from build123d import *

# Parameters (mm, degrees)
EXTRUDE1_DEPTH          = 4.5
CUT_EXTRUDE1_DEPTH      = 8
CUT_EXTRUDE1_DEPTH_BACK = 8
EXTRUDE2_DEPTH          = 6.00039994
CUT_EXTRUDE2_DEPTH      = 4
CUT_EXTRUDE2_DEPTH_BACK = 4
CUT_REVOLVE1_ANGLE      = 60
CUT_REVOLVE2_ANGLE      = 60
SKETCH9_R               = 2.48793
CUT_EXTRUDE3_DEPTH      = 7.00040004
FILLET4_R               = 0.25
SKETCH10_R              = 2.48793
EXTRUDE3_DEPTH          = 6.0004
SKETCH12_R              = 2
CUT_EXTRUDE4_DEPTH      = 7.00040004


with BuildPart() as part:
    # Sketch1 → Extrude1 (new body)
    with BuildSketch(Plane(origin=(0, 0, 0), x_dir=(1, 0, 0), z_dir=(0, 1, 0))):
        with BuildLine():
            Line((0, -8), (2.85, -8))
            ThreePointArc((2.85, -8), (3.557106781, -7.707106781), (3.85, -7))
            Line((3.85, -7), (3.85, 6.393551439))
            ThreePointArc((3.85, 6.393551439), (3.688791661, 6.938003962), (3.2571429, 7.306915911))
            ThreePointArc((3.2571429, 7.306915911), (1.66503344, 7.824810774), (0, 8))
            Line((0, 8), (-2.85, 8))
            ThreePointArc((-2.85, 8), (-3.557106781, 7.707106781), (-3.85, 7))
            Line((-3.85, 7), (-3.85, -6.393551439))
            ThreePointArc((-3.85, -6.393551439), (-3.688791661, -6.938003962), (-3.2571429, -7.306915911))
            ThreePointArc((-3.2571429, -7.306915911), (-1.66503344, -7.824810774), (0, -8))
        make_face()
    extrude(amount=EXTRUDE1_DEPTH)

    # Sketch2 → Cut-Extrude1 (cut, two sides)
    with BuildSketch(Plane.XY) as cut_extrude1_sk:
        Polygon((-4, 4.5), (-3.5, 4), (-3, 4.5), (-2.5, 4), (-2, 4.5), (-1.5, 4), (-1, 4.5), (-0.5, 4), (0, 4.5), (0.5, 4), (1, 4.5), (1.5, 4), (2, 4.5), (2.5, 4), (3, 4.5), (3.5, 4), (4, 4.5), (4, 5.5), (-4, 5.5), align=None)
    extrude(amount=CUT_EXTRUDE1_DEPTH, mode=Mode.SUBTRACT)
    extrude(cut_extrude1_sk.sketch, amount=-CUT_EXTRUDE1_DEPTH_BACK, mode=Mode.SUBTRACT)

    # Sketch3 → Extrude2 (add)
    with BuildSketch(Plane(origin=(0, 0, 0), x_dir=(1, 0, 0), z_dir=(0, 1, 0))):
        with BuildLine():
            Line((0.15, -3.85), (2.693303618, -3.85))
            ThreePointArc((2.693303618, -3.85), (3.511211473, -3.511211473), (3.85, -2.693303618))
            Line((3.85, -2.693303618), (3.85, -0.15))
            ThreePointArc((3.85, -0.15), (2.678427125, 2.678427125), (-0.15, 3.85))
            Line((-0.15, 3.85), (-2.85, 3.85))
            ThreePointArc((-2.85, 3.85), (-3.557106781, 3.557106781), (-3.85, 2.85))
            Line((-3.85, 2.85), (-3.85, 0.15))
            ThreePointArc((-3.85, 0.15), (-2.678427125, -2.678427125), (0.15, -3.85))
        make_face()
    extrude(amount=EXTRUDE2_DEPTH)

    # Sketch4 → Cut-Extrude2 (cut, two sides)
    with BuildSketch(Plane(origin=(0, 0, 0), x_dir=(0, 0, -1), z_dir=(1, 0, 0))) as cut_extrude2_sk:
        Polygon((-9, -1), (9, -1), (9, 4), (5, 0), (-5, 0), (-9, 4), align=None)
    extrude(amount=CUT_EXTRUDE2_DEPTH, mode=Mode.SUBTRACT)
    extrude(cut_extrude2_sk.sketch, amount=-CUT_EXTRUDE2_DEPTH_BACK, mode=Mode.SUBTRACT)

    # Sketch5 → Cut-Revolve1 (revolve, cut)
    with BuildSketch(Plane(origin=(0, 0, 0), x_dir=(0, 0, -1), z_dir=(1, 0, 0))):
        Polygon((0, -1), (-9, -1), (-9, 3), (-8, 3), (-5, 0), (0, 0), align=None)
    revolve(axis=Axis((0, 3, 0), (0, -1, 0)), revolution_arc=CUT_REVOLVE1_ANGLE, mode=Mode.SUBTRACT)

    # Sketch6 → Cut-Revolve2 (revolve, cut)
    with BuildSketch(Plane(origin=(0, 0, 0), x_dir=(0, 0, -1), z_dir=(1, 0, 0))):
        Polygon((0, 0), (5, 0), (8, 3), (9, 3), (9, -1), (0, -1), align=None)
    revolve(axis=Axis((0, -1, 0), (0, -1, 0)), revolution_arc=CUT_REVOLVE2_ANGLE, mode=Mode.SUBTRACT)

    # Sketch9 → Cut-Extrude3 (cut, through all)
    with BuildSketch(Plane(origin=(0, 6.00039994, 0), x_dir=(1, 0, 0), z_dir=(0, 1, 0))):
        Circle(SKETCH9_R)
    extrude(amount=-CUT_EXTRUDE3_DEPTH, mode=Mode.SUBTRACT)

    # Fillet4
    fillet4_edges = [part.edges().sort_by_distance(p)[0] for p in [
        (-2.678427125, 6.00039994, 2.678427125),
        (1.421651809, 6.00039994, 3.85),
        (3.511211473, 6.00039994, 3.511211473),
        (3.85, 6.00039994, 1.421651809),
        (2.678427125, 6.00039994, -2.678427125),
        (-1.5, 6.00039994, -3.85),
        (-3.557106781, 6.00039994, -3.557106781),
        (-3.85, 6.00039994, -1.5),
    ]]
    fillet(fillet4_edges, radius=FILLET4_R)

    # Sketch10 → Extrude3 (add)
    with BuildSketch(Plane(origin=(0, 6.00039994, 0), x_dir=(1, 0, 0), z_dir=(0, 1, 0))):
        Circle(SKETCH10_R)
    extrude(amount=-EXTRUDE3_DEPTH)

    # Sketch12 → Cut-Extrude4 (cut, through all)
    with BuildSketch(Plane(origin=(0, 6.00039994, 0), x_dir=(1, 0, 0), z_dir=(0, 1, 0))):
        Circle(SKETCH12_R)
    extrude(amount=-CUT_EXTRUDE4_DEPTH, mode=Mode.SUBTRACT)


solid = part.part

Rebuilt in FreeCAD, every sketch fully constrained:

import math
import FreeCAD as App
import Part
import Sketcher
from FreeCAD import Vector


def edges_at(feature, points):
    """Names of the edges that pass closest to the given points."""
    edges = feature.Shape.Edges
    near = lambda p: min(range(len(edges)), key=lambda i: edges[i].distToShape(Part.Vertex(*p))[0])
    return sorted({f"Edge{near(p) + 1}" for p in points})

doc = App.newDocument("Part")
body = doc.addObject("PartDesign::Body", "Body")

# Sketch on XZ plane
sketch1 = body.newObject("Sketcher::SketchObject", "Sketch")
sketch1.AttachmentSupport = (doc.getObject("XZ_Plane"), [""])
sketch1.MapMode = "FlatFace"
sketch1.addGeometry(Part.LineSegment(Vector(0, 8, 0), Vector(2.85, 8, 0)), False)
sketch1.addGeometry(Part.ArcOfCircle(Part.Circle(Vector(2.85, 7, 0), Vector(0, 0, 1), 1), math.radians(0), math.radians(90)), False)
sketch1.addGeometry(Part.LineSegment(Vector(3.85, 7, 0), Vector(3.85, -6.393551, 0)), False)
sketch1.addGeometry(Part.ArcOfCircle(Part.Circle(Vector(2.85, -6.393551, 0), Vector(0, 0, 1), 1), math.radians(-65.974518), math.radians(0)), False)
sketch1.addGeometry(Part.ArcOfCircle(Part.Circle(Vector(0, 0, 0), Vector(0, 0, 1), 8), math.radians(-90), math.radians(-65.97452)), False)
sketch1.addGeometry(Part.LineSegment(Vector(0, -8, 0), Vector(-2.85, -8, 0)), False)
sketch1.addGeometry(Part.ArcOfCircle(Part.Circle(Vector(-2.85, -7, 0), Vector(0, 0, 1), 1), math.radians(-180), math.radians(-90)), False)
sketch1.addGeometry(Part.LineSegment(Vector(-3.85, -7, 0), Vector(-3.85, 6.393551, 0)), False)
sketch1.addGeometry(Part.ArcOfCircle(Part.Circle(Vector(-2.85, 6.393551, 0), Vector(0, 0, 1), 1), math.radians(114.025482), math.radians(180)), False)
sketch1.addGeometry(Part.ArcOfCircle(Part.Circle(Vector(0, 0, 0), Vector(0, 0, 1), 8), math.radians(90), math.radians(114.02548)), False)
sketch1.addConstraint(Sketcher.Constraint("Tangent", 0, 2, 1, 2))
sketch1.addConstraint(Sketcher.Constraint("Tangent", 1, 1, 2, 1))
sketch1.addConstraint(Sketcher.Constraint("Tangent", 2, 2, 3, 2))
sketch1.addConstraint(Sketcher.Constraint("Tangent", 3, 1, 4, 2))
sketch1.addConstraint(Sketcher.Constraint("Tangent", 4, 1, 5, 1))
sketch1.addConstraint(Sketcher.Constraint("Tangent", 5, 2, 6, 2))
sketch1.addConstraint(Sketcher.Constraint("Tangent", 6, 1, 7, 1))
sketch1.addConstraint(Sketcher.Constraint("Tangent", 7, 2, 8, 2))
sketch1.addConstraint(Sketcher.Constraint("Tangent", 8, 1, 9, 2))
sketch1.addConstraint(Sketcher.Constraint("Tangent", 9, 1, 0, 1))
sketch1.addConstraint(Sketcher.Constraint("Horizontal", 0))
sketch1.addConstraint(Sketcher.Constraint("Vertical", 2))
sketch1.addConstraint(Sketcher.Constraint("Horizontal", 5))
sketch1.addConstraint(Sketcher.Constraint("Vertical", 7))
sketch1.addConstraint(Sketcher.Constraint("Coincident", 4, 3, -1, 1))
sketch1.addConstraint(Sketcher.Constraint("Coincident", 9, 3, -1, 1))
sketch1.addConstraint(Sketcher.Constraint("Equal", 1, 3))
sketch1.addConstraint(Sketcher.Constraint("Equal", 3, 6))
sketch1.addConstraint(Sketcher.Constraint("Equal", 6, 8))
sketch1.addConstraint(Sketcher.Constraint("Equal", 4, 9))
sketch1.addConstraint(Sketcher.Constraint("Equal", 0, 5))
sketch1.addConstraint(Sketcher.Constraint("Radius", 1, 1.0))
sketch1.addConstraint(Sketcher.Constraint("Radius", 4, 8.0))
sketch1.addConstraint(Sketcher.Constraint("DistanceX", 0, 1, 0, 2, 2.85))
pad1 = body.newObject("PartDesign::Pad", "Pad")
pad1.Profile = sketch1
pad1.Length = 4.5
pad1.Reversed = True

# Sketch on XY plane
sketch2 = body.newObject("Sketcher::SketchObject", "Sketch001")
sketch2.AttachmentSupport = (doc.getObject("XY_Plane"), [""])
sketch2.MapMode = "FlatFace"
sketch2.addGeometry(Part.LineSegment(Vector(-4, 4.5, 0), Vector(-3.5, 4, 0)), False)
sketch2.addGeometry(Part.LineSegment(Vector(-3.5, 4, 0), Vector(-3, 4.5, 0)), False)
sketch2.addGeometry(Part.LineSegment(Vector(-3, 4.5, 0), Vector(-2.5, 4, 0)), False)
sketch2.addGeometry(Part.LineSegment(Vector(-2.5, 4, 0), Vector(-2, 4.5, 0)), False)
sketch2.addGeometry(Part.LineSegment(Vector(-2, 4.5, 0), Vector(-1.5, 4, 0)), False)
sketch2.addGeometry(Part.LineSegment(Vector(-1.5, 4, 0), Vector(-1, 4.5, 0)), False)
sketch2.addGeometry(Part.LineSegment(Vector(-1, 4.5, 0), Vector(-0.5, 4, 0)), False)
sketch2.addGeometry(Part.LineSegment(Vector(-0.5, 4, 0), Vector(0, 4.5, 0)), False)
sketch2.addGeometry(Part.LineSegment(Vector(0, 4.5, 0), Vector(0.5, 4, 0)), False)
sketch2.addGeometry(Part.LineSegment(Vector(0.5, 4, 0), Vector(1, 4.5, 0)), False)
sketch2.addGeometry(Part.LineSegment(Vector(1, 4.5, 0), Vector(1.5, 4, 0)), False)
sketch2.addGeometry(Part.LineSegment(Vector(1.5, 4, 0), Vector(2, 4.5, 0)), False)
sketch2.addGeometry(Part.LineSegment(Vector(2, 4.5, 0), Vector(2.5, 4, 0)), False)
sketch2.addGeometry(Part.LineSegment(Vector(2.5, 4, 0), Vector(3, 4.5, 0)), False)
sketch2.addGeometry(Part.LineSegment(Vector(3, 4.5, 0), Vector(3.5, 4, 0)), False)
sketch2.addGeometry(Part.LineSegment(Vector(3.5, 4, 0), Vector(4, 4.5, 0)), False)
sketch2.addGeometry(Part.LineSegment(Vector(4, 4.5, 0), Vector(4, 5.5, 0)), False)
sketch2.addGeometry(Part.LineSegment(Vector(4, 5.5, 0), Vector(-4, 5.5, 0)), False)
sketch2.addGeometry(Part.LineSegment(Vector(-4, 5.5, 0), Vector(-4, 4.5, 0)), False)
sketch2.addConstraint(Sketcher.Constraint("Coincident", 0, 2, 1, 1))
sketch2.addConstraint(Sketcher.Constraint("Coincident", 1, 2, 2, 1))
sketch2.addConstraint(Sketcher.Constraint("Coincident", 2, 2, 3, 1))
sketch2.addConstraint(Sketcher.Constraint("Coincident", 3, 2, 4, 1))
sketch2.addConstraint(Sketcher.Constraint("Coincident", 4, 2, 5, 1))
sketch2.addConstraint(Sketcher.Constraint("Coincident", 5, 2, 6, 1))
sketch2.addConstraint(Sketcher.Constraint("Coincident", 6, 2, 7, 1))
sketch2.addConstraint(Sketcher.Constraint("Coincident", 7, 2, 8, 1))
sketch2.addConstraint(Sketcher.Constraint("Coincident", 8, 2, 9, 1))
sketch2.addConstraint(Sketcher.Constraint("Coincident", 9, 2, 10, 1))
sketch2.addConstraint(Sketcher.Constraint("Coincident", 10, 2, 11, 1))
sketch2.addConstraint(Sketcher.Constraint("Coincident", 11, 2, 12, 1))
sketch2.addConstraint(Sketcher.Constraint("Coincident", 12, 2, 13, 1))
sketch2.addConstraint(Sketcher.Constraint("Coincident", 13, 2, 14, 1))
sketch2.addConstraint(Sketcher.Constraint("Coincident", 14, 2, 15, 1))
sketch2.addConstraint(Sketcher.Constraint("Coincident", 15, 2, 16, 1))
sketch2.addConstraint(Sketcher.Constraint("Coincident", 16, 2, 17, 1))
sketch2.addConstraint(Sketcher.Constraint("Coincident", 17, 2, 18, 1))
sketch2.addConstraint(Sketcher.Constraint("Coincident", 18, 2, 0, 1))
sketch2.addConstraint(Sketcher.Constraint("Vertical", 16))
sketch2.addConstraint(Sketcher.Constraint("Horizontal", 17))
sketch2.addConstraint(Sketcher.Constraint("Vertical", 18))
sketch2.addConstraint(Sketcher.Constraint("Symmetric", 6, 2, 8, 2, -2))
sketch2.addConstraint(Sketcher.Constraint("Symmetric", 5, 2, 9, 2, -2))
sketch2.addConstraint(Sketcher.Constraint("Symmetric", 4, 2, 10, 2, -2))
sketch2.addConstraint(Sketcher.Constraint("Symmetric", 3, 2, 11, 2, -2))
sketch2.addConstraint(Sketcher.Constraint("Symmetric", 2, 2, 12, 2, -2))
sketch2.addConstraint(Sketcher.Constraint("Symmetric", 1, 2, 13, 2, -2))
sketch2.addConstraint(Sketcher.Constraint("Symmetric", 0, 2, 14, 2, -2))
sketch2.addConstraint(Sketcher.Constraint("Symmetric", 15, 2, 18, 2, -2))
sketch2.addConstraint(Sketcher.Constraint("PointOnObject", 7, 2, -2))
sketch2.addConstraint(Sketcher.Constraint("Perpendicular", 0, 1))
sketch2.addConstraint(Sketcher.Constraint("Perpendicular", 1, 2))
sketch2.addConstraint(Sketcher.Constraint("Perpendicular", 2, 3))
sketch2.addConstraint(Sketcher.Constraint("Perpendicular", 3, 4))
sketch2.addConstraint(Sketcher.Constraint("Perpendicular", 4, 5))
sketch2.addConstraint(Sketcher.Constraint("Perpendicular", 5, 6))
sketch2.addConstraint(Sketcher.Constraint("Perpendicular", 6, 7))
sketch2.addConstraint(Sketcher.Constraint("Perpendicular", 7, 8))
sketch2.addConstraint(Sketcher.Constraint("Horizontal", 0, 2, 2, 2))
sketch2.addConstraint(Sketcher.Constraint("Horizontal", 1, 2, 3, 2))
sketch2.addConstraint(Sketcher.Constraint("Horizontal", 2, 2, 4, 2))
sketch2.addConstraint(Sketcher.Constraint("Horizontal", 3, 2, 5, 2))
sketch2.addConstraint(Sketcher.Constraint("Horizontal", 4, 2, 6, 2))
sketch2.addConstraint(Sketcher.Constraint("Horizontal", 5, 2, 7, 2))
sketch2.addConstraint(Sketcher.Constraint("Horizontal", 13, 2, 15, 2))
sketch2.addConstraint(Sketcher.Constraint("DistanceX", 17, 2, 17, 1, 8.0))
sketch2.addConstraint(Sketcher.Constraint("DistanceY", 16, 1, 16, 2, 1.0))
sketch2.addConstraint(Sketcher.Constraint("DistanceY", -1, 1, 0, 2, 4.0))
pocket1 = body.newObject("PartDesign::Pocket", "Pocket")
pocket1.Profile = sketch2
pocket1.Type = "ThroughAll"
pocket1.Midplane = True

# Sketch on XZ plane
sketch3 = body.newObject("Sketcher::SketchObject", "Sketch002")
sketch3.AttachmentSupport = (doc.getObject("XZ_Plane"), [""])
sketch3.MapMode = "FlatFace"
sketch3.addGeometry(Part.LineSegment(Vector(0.15, 3.85, 0), Vector(2.693304, 3.85, 0)), False)
sketch3.addGeometry(Part.ArcOfCircle(Part.Circle(Vector(2.693304, 2.693304, 0), Vector(0, 0, 1), 1.156696), math.radians(0), math.radians(90)), False)
sketch3.addGeometry(Part.LineSegment(Vector(3.85, 2.693304, 0), Vector(3.85, 0.15, 0)), False)
sketch3.addGeometry(Part.ArcOfCircle(Part.Circle(Vector(-0.15, 0.15, 0), Vector(0, 0, 1), 4), math.radians(-90), math.radians(0)), False)
sketch3.addGeometry(Part.LineSegment(Vector(-0.15, -3.85, 0), Vector(-2.85, -3.85, 0)), False)
sketch3.addGeometry(Part.ArcOfCircle(Part.Circle(Vector(-2.85, -2.85, 0), Vector(0, 0, 1), 1), math.radians(-180), math.radians(-90)), False)
sketch3.addGeometry(Part.LineSegment(Vector(-3.85, -2.85, 0), Vector(-3.85, -0.15, 0)), False)
sketch3.addGeometry(Part.ArcOfCircle(Part.Circle(Vector(0.15, -0.15, 0), Vector(0, 0, 1), 4), math.radians(90), math.radians(180)), False)
sketch3.addConstraint(Sketcher.Constraint("Tangent", 0, 2, 1, 2))
sketch3.addConstraint(Sketcher.Constraint("Tangent", 1, 1, 2, 1))
sketch3.addConstraint(Sketcher.Constraint("Tangent", 2, 2, 3, 2))
sketch3.addConstraint(Sketcher.Constraint("Tangent", 3, 1, 4, 1))
sketch3.addConstraint(Sketcher.Constraint("Tangent", 4, 2, 5, 2))
sketch3.addConstraint(Sketcher.Constraint("Tangent", 5, 1, 6, 1))
sketch3.addConstraint(Sketcher.Constraint("Tangent", 6, 2, 7, 2))
sketch3.addConstraint(Sketcher.Constraint("Tangent", 7, 1, 0, 1))
sketch3.addConstraint(Sketcher.Constraint("Horizontal", 0))
sketch3.addConstraint(Sketcher.Constraint("Vertical", 2))
sketch3.addConstraint(Sketcher.Constraint("Horizontal", 4))
sketch3.addConstraint(Sketcher.Constraint("Vertical", 6))
sketch3.addConstraint(Sketcher.Constraint("Equal", 3, 7))
sketch3.addConstraint(Sketcher.Constraint("Symmetric", 3, 3, 7, 3, -1, 1))
sketch3.addConstraint(Sketcher.Constraint("Equal", 0, 2))
sketch3.addConstraint(Sketcher.Constraint("Radius", 3, 4.0))
sketch3.addConstraint(Sketcher.Constraint("Radius", 5, 1.0))
sketch3.addConstraint(Sketcher.Constraint("DistanceX", 4, 2, 4, 1, 2.7))
sketch3.addConstraint(Sketcher.Constraint("Radius", 1, 1.156696))
pad2 = body.newObject("PartDesign::Pad", "Pad001")
pad2.Profile = sketch3
pad2.Length = 6.0004
pad2.Reversed = True

# Sketch on YZ plane
sketch4 = body.newObject("Sketcher::SketchObject", "Sketch003")
sketch4.AttachmentSupport = (doc.getObject("YZ_Plane"), [""])
sketch4.MapMode = "FlatFace"
sketch4.addGeometry(Part.LineSegment(Vector(-1, 9, 0), Vector(-1, -9, 0)), False)
sketch4.addGeometry(Part.LineSegment(Vector(-1, -9, 0), Vector(4, -9, 0)), False)
sketch4.addGeometry(Part.LineSegment(Vector(4, -9, 0), Vector(0, -5, 0)), False)
sketch4.addGeometry(Part.LineSegment(Vector(0, -5, 0), Vector(0, 5, 0)), False)
sketch4.addGeometry(Part.LineSegment(Vector(0, 5, 0), Vector(4, 9, 0)), False)
sketch4.addGeometry(Part.LineSegment(Vector(4, 9, 0), Vector(-1, 9, 0)), False)
sketch4.addConstraint(Sketcher.Constraint("Coincident", 0, 2, 1, 1))
sketch4.addConstraint(Sketcher.Constraint("Coincident", 1, 2, 2, 1))
sketch4.addConstraint(Sketcher.Constraint("Coincident", 2, 2, 3, 1))
sketch4.addConstraint(Sketcher.Constraint("Coincident", 3, 2, 4, 1))
sketch4.addConstraint(Sketcher.Constraint("Coincident", 4, 2, 5, 1))
sketch4.addConstraint(Sketcher.Constraint("Coincident", 5, 2, 0, 1))
sketch4.addConstraint(Sketcher.Constraint("Vertical", 0))
sketch4.addConstraint(Sketcher.Constraint("Horizontal", 1))
sketch4.addConstraint(Sketcher.Constraint("Vertical", 3))
sketch4.addConstraint(Sketcher.Constraint("Horizontal", 5))
sketch4.addConstraint(Sketcher.Constraint("Symmetric", 2, 2, 3, 2, -1, 1))
sketch4.addConstraint(Sketcher.Constraint("Symmetric", 1, 2, 4, 2, -1))
sketch4.addConstraint(Sketcher.Constraint("Perpendicular", 2, 4))
sketch4.addConstraint(Sketcher.Constraint("DistanceX", 1, 1, 1, 2, 5.0))
sketch4.addConstraint(Sketcher.Constraint("DistanceY", 0, 2, 0, 1, 18.0))
sketch4.addConstraint(Sketcher.Constraint("DistanceY", 3, 1, 3, 2, 10.0))
pocket2 = body.newObject("PartDesign::Pocket", "Pocket001")
pocket2.Profile = sketch4
pocket2.Type = "ThroughAll"
pocket2.Midplane = True

# Sketch on YZ plane
sketch5 = body.newObject("Sketcher::SketchObject", "Sketch004")
sketch5.AttachmentSupport = (doc.getObject("YZ_Plane"), [""])
sketch5.MapMode = "FlatFace"
sketch5.addGeometry(Part.LineSegment(Vector(-1, 9, 0), Vector(-1, 0, 0)), False)
sketch5.addGeometry(Part.LineSegment(Vector(-1, 0, 0), Vector(0, 0, 0)), False)
sketch5.addGeometry(Part.LineSegment(Vector(0, 0, 0), Vector(0, 5, 0)), False)
sketch5.addGeometry(Part.LineSegment(Vector(0, 5, 0), Vector(3, 8, 0)), False)
sketch5.addGeometry(Part.LineSegment(Vector(3, 8, 0), Vector(3, 9, 0)), False)
sketch5.addGeometry(Part.LineSegment(Vector(3, 9, 0), Vector(-1, 9, 0)), False)
sketch5.addConstraint(Sketcher.Constraint("Coincident", 0, 2, 1, 1))
sketch5.addConstraint(Sketcher.Constraint("Coincident", 1, 2, 2, 1))
sketch5.addConstraint(Sketcher.Constraint("Coincident", 2, 2, 3, 1))
sketch5.addConstraint(Sketcher.Constraint("Coincident", 3, 2, 4, 1))
sketch5.addConstraint(Sketcher.Constraint("Coincident", 4, 2, 5, 1))
sketch5.addConstraint(Sketcher.Constraint("Coincident", 5, 2, 0, 1))
sketch5.addConstraint(Sketcher.Constraint("Vertical", 0))
sketch5.addConstraint(Sketcher.Constraint("Horizontal", 1))
sketch5.addConstraint(Sketcher.Constraint("Vertical", 2))
sketch5.addConstraint(Sketcher.Constraint("Vertical", 4))
sketch5.addConstraint(Sketcher.Constraint("Horizontal", 5))
sketch5.addConstraint(Sketcher.Constraint("Coincident", 1, 2, -1, 1))
sketch5.addConstraint(Sketcher.Constraint("Equal", 1, 4))
sketch5.addConstraint(Sketcher.Constraint("DistanceX", 1, 1, 1, 2, 1.0))
sketch5.addConstraint(Sketcher.Constraint("DistanceX", 5, 2, 5, 1, 4.0))
sketch5.addConstraint(Sketcher.Constraint("DistanceY", 0, 2, 0, 1, 9.0))
sketch5.addConstraint(Sketcher.Constraint("DistanceY", 2, 1, 2, 2, 5.0))
groove = body.newObject("PartDesign::Groove", "Groove")
groove.Profile = sketch5
groove.ReferenceAxis = (sketch5, ["H_Axis"])
groove.Angle = 60
groove.Reversed = True

# Sketch on YZ plane
sketch6 = body.newObject("Sketcher::SketchObject", "Sketch005")
sketch6.AttachmentSupport = (doc.getObject("YZ_Plane"), [""])
sketch6.MapMode = "FlatFace"
sketch6.addGeometry(Part.LineSegment(Vector(0, -5, 0), Vector(0, 0, 0)), False)
sketch6.addGeometry(Part.LineSegment(Vector(0, 0, 0), Vector(-1, 0, 0)), False)
sketch6.addGeometry(Part.LineSegment(Vector(-1, 0, 0), Vector(-1, -9, 0)), False)
sketch6.addGeometry(Part.LineSegment(Vector(-1, -9, 0), Vector(3, -9, 0)), False)
sketch6.addGeometry(Part.LineSegment(Vector(3, -9, 0), Vector(3, -8, 0)), False)
sketch6.addGeometry(Part.LineSegment(Vector(3, -8, 0), Vector(0, -5, 0)), False)
sketch6.addConstraint(Sketcher.Constraint("Coincident", 0, 2, 1, 1))
sketch6.addConstraint(Sketcher.Constraint("Coincident", 1, 2, 2, 1))
sketch6.addConstraint(Sketcher.Constraint("Coincident", 2, 2, 3, 1))
sketch6.addConstraint(Sketcher.Constraint("Coincident", 3, 2, 4, 1))
sketch6.addConstraint(Sketcher.Constraint("Coincident", 4, 2, 5, 1))
sketch6.addConstraint(Sketcher.Constraint("Coincident", 5, 2, 0, 1))
sketch6.addConstraint(Sketcher.Constraint("Vertical", 0))
sketch6.addConstraint(Sketcher.Constraint("Horizontal", 1))
sketch6.addConstraint(Sketcher.Constraint("Vertical", 2))
sketch6.addConstraint(Sketcher.Constraint("Horizontal", 3))
sketch6.addConstraint(Sketcher.Constraint("Vertical", 4))
sketch6.addConstraint(Sketcher.Constraint("Coincident", 0, 2, -1, 1))
sketch6.addConstraint(Sketcher.Constraint("Equal", 1, 4))
sketch6.addConstraint(Sketcher.Constraint("DistanceX", 1, 2, 1, 1, 1.0))
sketch6.addConstraint(Sketcher.Constraint("DistanceX", 3, 1, 3, 2, 4.0))
sketch6.addConstraint(Sketcher.Constraint("DistanceY", 0, 1, 0, 2, 5.0))
sketch6.addConstraint(Sketcher.Constraint("DistanceY", 2, 2, 2, 1, 9.0))
groove2 = body.newObject("PartDesign::Groove", "Groove001")
groove2.Profile = sketch6
groove2.ReferenceAxis = (sketch6, ["H_Axis"])
groove2.Angle = 60
groove2.Reversed = True

# Sketch on XZ plane
sketch7 = body.newObject("Sketcher::SketchObject", "Sketch006")
sketch7.AttachmentSupport = (doc.getObject("XZ_Plane"), [""])
sketch7.MapMode = "FlatFace"
sketch7.AttachmentOffset = App.Placement(Vector(0, 0, -6.0004), App.Rotation())
sketch7.addGeometry(Part.Circle(Vector(0, 0, 0), Vector(0, 0, 1), 2.48793), False)
sketch7.addConstraint(Sketcher.Constraint("Coincident", 0, 3, -1, 1))
sketch7.addConstraint(Sketcher.Constraint("Diameter", 0, 4.97586))
pocket3 = body.newObject("PartDesign::Pocket", "Pocket002")
pocket3.Profile = sketch7
pocket3.Type = "ThroughAll"
pocket3.Reversed = True
doc.recompute()

fillet = body.newObject("PartDesign::Fillet", "Fillet")
fillet.Base = (pocket3, edges_at(pocket3, [
    (-2.678, 6, 2.678),
    (1.422, 6, 3.85),
    (3.511, 6, 3.511),
    (3.85, 6, 1.422),
    (2.678, 6, -2.678),
    (-1.5, 6, -3.85),
    (-3.557, 6, -3.557),
    (-3.85, 6, -1.5),
]))
fillet.Radius = 0.25

# Sketch on XZ plane
sketch8 = body.newObject("Sketcher::SketchObject", "Sketch007")
sketch8.AttachmentSupport = (doc.getObject("XZ_Plane"), [""])
sketch8.MapMode = "FlatFace"
sketch8.AttachmentOffset = App.Placement(Vector(0, 0, -6.0004), App.Rotation())
sketch8.addGeometry(Part.Circle(Vector(0, 0, 0), Vector(0, 0, 1), 2.48793), False)
sketch8.addConstraint(Sketcher.Constraint("Coincident", 0, 3, -1, 1))
sketch8.addConstraint(Sketcher.Constraint("Diameter", 0, 4.97586))
pad3 = body.newObject("PartDesign::Pad", "Pad002")
pad3.Profile = sketch8
pad3.Length = 6.0004

# Sketch on XZ plane
sketch9 = body.newObject("Sketcher::SketchObject", "Sketch008")
sketch9.AttachmentSupport = (doc.getObject("XZ_Plane"), [""])
sketch9.MapMode = "FlatFace"
sketch9.AttachmentOffset = App.Placement(Vector(0, 0, -6.0004), App.Rotation())
sketch9.addGeometry(Part.Circle(Vector(0, 0, 0), Vector(0, 0, 1), 2), False)
sketch9.addConstraint(Sketcher.Constraint("Coincident", 0, 3, -1, 1))
sketch9.addConstraint(Sketcher.Constraint("Diameter", 0, 4.0))
pocket4 = body.newObject("PartDesign::Pocket", "Pocket003")
pocket4.Profile = sketch9
pocket4.Type = "ThroughAll"
pocket4.Reversed = True

doc.recompute()
